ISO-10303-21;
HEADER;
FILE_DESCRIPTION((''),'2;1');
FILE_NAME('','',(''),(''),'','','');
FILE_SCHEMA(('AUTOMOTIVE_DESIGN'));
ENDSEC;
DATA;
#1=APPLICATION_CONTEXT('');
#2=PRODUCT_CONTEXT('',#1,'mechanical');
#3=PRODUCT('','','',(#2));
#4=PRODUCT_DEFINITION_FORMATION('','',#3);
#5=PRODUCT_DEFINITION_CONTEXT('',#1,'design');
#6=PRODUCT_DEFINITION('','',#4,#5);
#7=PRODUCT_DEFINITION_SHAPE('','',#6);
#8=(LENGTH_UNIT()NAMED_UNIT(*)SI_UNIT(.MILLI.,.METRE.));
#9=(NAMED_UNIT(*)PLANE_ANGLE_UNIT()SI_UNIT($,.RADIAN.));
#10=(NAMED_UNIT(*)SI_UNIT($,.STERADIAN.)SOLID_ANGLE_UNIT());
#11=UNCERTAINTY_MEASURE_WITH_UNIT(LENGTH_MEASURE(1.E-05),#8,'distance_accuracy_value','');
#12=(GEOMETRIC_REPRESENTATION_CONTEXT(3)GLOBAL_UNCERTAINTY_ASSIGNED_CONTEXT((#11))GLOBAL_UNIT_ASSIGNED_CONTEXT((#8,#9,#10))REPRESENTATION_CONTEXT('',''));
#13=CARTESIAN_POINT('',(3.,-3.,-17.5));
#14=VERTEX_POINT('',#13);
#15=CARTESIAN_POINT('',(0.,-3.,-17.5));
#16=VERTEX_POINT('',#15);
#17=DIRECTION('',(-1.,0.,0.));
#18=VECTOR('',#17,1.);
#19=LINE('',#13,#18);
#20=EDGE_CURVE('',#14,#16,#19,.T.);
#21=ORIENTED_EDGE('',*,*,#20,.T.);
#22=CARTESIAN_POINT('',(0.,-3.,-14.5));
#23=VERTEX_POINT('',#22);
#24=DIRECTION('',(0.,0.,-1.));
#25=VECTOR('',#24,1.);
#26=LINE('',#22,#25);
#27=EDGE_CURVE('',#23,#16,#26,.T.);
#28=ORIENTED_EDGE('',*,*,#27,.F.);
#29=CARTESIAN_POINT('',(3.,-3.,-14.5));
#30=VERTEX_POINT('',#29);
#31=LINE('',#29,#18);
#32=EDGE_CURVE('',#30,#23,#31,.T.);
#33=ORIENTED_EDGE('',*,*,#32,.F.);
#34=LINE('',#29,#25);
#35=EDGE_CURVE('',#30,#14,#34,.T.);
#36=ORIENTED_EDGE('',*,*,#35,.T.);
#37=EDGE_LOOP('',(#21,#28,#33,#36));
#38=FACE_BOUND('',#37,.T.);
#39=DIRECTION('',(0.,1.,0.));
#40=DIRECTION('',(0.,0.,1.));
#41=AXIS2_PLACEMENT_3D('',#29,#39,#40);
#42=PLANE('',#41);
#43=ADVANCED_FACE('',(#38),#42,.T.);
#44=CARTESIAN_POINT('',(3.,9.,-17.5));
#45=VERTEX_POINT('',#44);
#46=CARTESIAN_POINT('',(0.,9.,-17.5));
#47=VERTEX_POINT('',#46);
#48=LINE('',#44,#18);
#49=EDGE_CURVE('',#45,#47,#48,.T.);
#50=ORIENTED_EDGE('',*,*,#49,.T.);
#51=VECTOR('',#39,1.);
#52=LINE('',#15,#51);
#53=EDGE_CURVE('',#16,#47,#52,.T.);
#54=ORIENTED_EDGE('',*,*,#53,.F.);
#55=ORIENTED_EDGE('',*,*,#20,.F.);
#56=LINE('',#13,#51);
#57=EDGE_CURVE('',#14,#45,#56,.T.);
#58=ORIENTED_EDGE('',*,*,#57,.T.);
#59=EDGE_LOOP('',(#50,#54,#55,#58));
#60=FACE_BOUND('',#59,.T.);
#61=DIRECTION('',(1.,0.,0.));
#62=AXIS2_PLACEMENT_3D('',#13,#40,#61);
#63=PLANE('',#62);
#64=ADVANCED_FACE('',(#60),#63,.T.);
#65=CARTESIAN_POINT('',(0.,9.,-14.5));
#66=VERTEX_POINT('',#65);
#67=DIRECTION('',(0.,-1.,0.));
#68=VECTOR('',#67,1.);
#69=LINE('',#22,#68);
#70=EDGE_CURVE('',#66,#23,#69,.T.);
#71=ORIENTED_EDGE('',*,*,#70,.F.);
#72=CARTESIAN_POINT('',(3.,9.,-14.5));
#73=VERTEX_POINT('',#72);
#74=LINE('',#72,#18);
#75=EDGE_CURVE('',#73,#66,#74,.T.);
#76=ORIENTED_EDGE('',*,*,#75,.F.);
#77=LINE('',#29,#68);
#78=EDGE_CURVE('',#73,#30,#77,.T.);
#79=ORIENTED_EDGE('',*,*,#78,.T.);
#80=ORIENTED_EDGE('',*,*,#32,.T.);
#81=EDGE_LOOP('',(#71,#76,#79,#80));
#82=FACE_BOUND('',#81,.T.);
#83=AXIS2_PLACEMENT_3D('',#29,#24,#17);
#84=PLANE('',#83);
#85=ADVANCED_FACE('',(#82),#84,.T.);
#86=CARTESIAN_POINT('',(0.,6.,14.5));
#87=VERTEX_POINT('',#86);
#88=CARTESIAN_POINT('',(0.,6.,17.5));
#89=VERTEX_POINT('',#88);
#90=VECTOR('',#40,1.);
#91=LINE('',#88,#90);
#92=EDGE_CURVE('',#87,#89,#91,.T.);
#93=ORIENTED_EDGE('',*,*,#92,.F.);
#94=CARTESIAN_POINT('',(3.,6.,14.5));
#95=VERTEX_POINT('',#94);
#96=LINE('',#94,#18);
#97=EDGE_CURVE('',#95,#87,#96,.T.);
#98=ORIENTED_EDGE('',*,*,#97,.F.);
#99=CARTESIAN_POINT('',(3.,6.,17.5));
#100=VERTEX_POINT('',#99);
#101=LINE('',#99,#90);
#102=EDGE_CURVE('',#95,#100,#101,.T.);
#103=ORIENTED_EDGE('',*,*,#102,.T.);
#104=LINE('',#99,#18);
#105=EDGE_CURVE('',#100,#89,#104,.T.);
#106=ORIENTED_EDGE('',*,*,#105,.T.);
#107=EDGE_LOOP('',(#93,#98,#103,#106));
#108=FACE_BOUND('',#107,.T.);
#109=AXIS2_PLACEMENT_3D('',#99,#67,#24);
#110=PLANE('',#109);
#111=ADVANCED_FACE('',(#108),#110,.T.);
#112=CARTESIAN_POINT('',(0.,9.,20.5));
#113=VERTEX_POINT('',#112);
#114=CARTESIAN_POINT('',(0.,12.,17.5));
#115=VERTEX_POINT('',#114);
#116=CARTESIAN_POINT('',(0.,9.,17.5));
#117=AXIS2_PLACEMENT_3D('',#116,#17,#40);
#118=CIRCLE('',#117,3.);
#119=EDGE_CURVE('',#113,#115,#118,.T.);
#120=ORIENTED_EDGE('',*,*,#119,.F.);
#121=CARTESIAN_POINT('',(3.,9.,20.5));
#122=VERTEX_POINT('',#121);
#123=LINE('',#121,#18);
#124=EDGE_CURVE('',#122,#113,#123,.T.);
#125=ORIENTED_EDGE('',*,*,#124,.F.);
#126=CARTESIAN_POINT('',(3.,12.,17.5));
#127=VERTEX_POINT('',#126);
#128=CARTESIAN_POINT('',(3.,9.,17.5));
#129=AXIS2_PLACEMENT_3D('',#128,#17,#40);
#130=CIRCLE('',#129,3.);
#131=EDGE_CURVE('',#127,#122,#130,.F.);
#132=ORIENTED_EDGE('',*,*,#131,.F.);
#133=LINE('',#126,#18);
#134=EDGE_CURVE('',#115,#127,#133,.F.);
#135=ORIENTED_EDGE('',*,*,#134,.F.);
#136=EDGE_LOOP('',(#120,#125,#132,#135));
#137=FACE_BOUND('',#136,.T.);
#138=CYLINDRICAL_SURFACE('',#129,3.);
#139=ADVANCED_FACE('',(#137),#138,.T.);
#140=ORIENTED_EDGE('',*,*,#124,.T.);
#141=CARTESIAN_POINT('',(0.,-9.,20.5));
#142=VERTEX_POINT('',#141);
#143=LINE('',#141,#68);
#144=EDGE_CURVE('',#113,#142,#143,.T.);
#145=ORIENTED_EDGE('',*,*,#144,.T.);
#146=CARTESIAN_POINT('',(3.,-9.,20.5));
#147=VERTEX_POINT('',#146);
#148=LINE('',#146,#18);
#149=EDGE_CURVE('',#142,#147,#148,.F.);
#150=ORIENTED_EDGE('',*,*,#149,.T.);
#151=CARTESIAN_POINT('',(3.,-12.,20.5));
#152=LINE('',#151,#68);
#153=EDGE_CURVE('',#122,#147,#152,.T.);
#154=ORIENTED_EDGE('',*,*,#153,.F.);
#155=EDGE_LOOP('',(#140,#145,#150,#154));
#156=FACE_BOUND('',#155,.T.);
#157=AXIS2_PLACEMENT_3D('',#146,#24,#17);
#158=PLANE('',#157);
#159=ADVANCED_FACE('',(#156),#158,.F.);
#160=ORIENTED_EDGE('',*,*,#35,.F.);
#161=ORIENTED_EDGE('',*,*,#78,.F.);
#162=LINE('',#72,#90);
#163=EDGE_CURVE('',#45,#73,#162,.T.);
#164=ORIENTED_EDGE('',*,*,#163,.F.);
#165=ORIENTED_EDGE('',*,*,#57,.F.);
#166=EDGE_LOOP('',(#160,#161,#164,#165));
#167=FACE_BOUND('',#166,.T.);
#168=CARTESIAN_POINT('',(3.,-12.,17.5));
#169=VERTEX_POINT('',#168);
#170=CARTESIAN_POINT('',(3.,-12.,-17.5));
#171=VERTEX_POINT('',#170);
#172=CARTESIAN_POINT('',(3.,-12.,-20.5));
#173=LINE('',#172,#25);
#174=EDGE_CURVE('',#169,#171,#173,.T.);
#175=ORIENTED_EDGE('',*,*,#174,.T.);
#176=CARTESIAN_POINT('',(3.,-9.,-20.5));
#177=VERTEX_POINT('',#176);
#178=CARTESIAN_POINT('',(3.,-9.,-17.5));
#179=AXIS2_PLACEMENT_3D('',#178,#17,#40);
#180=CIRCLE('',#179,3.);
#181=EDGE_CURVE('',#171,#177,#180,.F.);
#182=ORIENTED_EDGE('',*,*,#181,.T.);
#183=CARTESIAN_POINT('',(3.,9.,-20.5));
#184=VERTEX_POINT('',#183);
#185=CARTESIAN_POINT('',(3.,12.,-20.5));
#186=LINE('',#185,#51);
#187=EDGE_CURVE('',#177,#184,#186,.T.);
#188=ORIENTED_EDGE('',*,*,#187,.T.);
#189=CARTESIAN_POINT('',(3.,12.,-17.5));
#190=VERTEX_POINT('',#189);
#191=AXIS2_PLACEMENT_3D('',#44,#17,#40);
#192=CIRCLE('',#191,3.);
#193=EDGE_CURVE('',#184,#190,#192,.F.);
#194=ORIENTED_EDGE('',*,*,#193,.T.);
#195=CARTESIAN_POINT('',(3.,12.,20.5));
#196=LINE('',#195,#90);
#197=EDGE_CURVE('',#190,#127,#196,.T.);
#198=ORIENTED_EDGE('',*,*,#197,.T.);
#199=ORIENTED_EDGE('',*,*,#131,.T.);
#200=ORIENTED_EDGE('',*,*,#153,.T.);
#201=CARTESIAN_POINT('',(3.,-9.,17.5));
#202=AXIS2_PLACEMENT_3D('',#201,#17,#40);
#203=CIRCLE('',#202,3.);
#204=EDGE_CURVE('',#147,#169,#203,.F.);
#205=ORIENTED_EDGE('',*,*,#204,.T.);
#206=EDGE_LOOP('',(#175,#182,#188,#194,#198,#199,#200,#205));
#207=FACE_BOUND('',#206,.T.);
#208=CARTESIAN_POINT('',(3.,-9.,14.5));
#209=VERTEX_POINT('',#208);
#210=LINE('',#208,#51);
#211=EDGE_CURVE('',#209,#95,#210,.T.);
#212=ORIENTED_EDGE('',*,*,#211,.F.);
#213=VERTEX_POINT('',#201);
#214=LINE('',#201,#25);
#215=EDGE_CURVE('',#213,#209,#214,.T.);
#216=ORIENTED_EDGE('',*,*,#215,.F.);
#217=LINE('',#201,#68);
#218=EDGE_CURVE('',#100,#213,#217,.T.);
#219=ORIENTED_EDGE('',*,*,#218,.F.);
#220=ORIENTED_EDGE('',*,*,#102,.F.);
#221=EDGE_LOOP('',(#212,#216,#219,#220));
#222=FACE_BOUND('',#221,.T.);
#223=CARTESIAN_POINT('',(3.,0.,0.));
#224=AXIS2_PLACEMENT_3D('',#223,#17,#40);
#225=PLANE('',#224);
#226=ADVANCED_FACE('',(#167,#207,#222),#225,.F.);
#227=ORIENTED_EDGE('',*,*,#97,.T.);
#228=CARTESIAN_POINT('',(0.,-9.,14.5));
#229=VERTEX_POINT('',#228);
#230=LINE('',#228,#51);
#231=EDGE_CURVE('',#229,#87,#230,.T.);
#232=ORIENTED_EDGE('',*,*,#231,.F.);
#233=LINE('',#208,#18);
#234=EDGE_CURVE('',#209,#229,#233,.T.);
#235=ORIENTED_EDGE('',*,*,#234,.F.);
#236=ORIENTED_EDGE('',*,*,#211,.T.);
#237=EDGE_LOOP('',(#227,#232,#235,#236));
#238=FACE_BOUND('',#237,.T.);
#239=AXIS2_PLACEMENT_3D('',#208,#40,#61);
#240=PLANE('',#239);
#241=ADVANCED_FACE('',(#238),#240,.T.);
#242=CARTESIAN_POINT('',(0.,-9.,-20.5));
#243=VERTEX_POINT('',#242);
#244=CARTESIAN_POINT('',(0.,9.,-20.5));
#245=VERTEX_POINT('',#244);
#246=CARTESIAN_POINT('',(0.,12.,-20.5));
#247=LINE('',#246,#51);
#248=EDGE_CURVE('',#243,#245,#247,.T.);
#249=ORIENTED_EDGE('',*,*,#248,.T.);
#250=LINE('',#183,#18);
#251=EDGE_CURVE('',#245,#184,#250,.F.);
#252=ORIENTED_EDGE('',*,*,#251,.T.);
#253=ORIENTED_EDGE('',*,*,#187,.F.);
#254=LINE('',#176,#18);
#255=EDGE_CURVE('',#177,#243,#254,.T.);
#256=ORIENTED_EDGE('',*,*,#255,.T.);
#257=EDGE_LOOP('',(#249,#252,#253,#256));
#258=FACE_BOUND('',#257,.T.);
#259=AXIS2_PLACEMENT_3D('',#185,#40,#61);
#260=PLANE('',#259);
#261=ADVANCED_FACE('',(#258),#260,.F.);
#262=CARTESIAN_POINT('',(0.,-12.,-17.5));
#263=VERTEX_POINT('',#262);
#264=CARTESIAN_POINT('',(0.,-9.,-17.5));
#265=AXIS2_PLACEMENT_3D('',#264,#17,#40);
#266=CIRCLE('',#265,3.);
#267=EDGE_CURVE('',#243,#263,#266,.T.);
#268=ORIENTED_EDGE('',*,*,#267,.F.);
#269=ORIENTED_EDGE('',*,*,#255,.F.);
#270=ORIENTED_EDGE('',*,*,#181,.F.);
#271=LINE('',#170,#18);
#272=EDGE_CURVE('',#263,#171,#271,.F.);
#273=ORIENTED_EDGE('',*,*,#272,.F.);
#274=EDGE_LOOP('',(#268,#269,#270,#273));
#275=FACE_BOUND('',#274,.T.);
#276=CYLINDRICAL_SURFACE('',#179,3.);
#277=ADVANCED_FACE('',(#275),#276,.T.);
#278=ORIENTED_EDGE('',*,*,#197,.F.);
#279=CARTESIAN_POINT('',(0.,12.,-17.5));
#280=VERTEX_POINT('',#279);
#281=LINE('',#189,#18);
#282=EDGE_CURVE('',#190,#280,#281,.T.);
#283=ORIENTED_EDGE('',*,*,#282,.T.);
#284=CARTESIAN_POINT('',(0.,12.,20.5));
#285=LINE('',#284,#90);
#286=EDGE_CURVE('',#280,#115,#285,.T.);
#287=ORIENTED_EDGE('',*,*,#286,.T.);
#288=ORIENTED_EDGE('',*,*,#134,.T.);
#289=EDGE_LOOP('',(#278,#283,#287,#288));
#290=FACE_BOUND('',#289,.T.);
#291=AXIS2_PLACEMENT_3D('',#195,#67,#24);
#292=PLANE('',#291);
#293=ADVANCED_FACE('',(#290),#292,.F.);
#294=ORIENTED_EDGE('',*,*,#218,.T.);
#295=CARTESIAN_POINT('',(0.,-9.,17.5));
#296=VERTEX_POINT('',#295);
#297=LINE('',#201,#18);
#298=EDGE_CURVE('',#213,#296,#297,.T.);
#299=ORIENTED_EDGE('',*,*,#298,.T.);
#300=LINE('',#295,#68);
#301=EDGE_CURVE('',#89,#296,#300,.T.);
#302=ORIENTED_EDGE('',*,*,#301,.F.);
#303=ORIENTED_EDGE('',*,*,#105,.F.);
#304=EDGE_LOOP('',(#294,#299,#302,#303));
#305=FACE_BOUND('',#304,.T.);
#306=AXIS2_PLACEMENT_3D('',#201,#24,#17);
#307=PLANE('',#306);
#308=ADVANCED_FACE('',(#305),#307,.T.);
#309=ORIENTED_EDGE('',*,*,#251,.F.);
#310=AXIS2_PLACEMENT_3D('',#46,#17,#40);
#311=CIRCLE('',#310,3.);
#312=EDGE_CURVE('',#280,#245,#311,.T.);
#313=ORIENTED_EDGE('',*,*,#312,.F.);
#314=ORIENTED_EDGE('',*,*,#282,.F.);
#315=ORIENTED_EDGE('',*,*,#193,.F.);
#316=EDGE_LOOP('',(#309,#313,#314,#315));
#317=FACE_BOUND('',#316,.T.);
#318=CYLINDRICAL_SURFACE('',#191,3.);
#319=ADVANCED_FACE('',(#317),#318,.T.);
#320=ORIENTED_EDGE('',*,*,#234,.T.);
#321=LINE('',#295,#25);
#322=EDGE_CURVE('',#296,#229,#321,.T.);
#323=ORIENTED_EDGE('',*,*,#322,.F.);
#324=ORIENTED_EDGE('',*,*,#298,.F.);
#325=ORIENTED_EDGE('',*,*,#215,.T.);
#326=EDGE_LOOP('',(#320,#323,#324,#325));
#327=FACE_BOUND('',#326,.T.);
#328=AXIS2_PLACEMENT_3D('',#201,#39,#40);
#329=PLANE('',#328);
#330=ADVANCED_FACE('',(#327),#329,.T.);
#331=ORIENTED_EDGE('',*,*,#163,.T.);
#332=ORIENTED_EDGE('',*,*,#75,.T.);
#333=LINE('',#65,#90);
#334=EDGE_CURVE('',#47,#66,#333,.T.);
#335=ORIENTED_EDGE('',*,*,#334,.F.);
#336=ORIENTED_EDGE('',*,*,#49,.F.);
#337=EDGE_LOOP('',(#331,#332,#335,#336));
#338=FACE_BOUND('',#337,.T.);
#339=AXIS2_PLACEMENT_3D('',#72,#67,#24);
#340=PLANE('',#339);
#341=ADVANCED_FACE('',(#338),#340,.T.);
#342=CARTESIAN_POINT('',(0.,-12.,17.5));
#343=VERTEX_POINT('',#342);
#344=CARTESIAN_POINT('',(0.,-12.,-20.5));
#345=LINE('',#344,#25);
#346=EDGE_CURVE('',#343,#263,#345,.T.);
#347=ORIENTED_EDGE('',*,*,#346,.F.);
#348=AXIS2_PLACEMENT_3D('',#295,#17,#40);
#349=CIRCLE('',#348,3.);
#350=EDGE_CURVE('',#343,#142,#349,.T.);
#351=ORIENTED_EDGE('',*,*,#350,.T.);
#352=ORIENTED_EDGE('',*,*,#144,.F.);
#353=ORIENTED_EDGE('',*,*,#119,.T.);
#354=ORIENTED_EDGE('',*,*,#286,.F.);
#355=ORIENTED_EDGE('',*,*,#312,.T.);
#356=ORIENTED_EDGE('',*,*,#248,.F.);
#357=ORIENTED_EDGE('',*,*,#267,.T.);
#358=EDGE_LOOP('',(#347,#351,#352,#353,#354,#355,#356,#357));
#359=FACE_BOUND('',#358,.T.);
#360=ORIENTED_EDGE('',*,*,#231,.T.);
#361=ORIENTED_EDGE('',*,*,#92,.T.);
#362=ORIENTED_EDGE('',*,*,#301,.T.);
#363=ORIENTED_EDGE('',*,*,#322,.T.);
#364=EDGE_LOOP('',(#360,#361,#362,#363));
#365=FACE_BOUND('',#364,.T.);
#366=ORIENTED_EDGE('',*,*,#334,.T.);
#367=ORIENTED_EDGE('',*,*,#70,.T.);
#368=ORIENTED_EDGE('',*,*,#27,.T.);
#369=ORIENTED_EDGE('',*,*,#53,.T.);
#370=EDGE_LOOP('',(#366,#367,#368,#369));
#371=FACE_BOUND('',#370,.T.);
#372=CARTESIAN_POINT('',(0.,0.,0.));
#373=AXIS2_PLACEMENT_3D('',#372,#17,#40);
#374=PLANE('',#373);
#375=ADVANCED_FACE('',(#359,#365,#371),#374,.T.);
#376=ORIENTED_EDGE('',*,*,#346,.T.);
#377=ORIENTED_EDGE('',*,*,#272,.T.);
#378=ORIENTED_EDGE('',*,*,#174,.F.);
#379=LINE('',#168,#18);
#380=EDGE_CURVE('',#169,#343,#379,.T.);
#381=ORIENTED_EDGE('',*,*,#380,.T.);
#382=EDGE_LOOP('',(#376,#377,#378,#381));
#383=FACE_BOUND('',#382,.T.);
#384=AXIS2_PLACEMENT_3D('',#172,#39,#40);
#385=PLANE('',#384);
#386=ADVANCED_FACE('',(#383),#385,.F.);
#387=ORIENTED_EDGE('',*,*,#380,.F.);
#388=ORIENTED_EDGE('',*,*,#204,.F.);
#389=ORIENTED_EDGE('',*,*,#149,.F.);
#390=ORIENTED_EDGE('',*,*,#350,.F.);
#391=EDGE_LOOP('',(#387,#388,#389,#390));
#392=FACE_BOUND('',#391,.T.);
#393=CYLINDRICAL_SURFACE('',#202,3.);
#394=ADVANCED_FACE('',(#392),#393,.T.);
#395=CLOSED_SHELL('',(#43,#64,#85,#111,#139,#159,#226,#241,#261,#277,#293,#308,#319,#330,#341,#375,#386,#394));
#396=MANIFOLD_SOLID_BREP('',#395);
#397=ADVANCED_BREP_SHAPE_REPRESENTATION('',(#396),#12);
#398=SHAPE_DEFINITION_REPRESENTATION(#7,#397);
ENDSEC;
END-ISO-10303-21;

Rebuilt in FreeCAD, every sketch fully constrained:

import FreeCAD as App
import Part
import Sketcher

V = App.Vector


def edges_at(feature, points):
    """Names of the edges that pass closest to the given points."""
    edges = feature.Shape.Edges
    near = lambda p: min(range(len(edges)), key=lambda i: edges[i].distToShape(Part.Vertex(*p))[0])
    return sorted({f"Edge{near(p) + 1}" for p in points})

doc = App.newDocument("Part")
body = doc.addObject("PartDesign::Body", "Body")

sketch1 = doc.addObject("Sketcher::SketchObject", "Sketch")
body.addObject(sketch1)
sketch1.AttachmentSupport = (doc.YZ_Plane, [""])
sketch1.MapMode = "FlatFace"
sketch1.addGeometry([
    Part.LineSegment(V(12, 20.5, 0), V(-12, 20.5, 0)),
    Part.LineSegment(V(-12, 20.5, 0), V(-12, -20.5, 0)),
    Part.LineSegment(V(-12, -20.5, 0), V(12, -20.5, 0)),
    Part.LineSegment(V(12, -20.5, 0), V(12, 20.5, 0)),
    Part.LineSegment(V(-9, 17.5, 0), V(6, 17.5, 0)),
    Part.LineSegment(V(6, 17.5, 0), V(6, 14.5, 0)),
    Part.LineSegment(V(6, 14.5, 0), V(-9, 14.5, 0)),
    Part.LineSegment(V(-9, 14.5, 0), V(-9, 17.5, 0)),
    Part.LineSegment(V(-3, -14.5, 0), V(9, -14.5, 0)),
    Part.LineSegment(V(9, -14.5, 0), V(9, -17.5, 0)),
    Part.LineSegment(V(9, -17.5, 0), V(-3, -17.5, 0)),
    Part.LineSegment(V(-3, -17.5, 0), V(-3, -14.5, 0)),
], False)
sketch1.addConstraint([
    Sketcher.Constraint("Coincident", 0, 2, 1, 1),
    Sketcher.Constraint("Coincident", 1, 2, 2, 1),
    Sketcher.Constraint("Coincident", 2, 2, 3, 1),
    Sketcher.Constraint("Coincident", 3, 2, 0, 1),
    Sketcher.Constraint("Coincident", 4, 2, 5, 1),
    Sketcher.Constraint("Coincident", 5, 2, 6, 1),
    Sketcher.Constraint("Coincident", 6, 2, 7, 1),
    Sketcher.Constraint("Coincident", 7, 2, 4, 1),
    Sketcher.Constraint("Coincident", 8, 2, 9, 1),
    Sketcher.Constraint("Coincident", 9, 2, 10, 1),
    Sketcher.Constraint("Coincident", 10, 2, 11, 1),
    Sketcher.Constraint("Coincident", 11, 2, 8, 1),
    Sketcher.Constraint("Horizontal", 0),
    Sketcher.Constraint("Vertical", 1),
    Sketcher.Constraint("Horizontal", 2),
    Sketcher.Constraint("Vertical", 3),
    Sketcher.Constraint("Horizontal", 4),
    Sketcher.Constraint("Vertical", 5),
    Sketcher.Constraint("Horizontal", 6),
    Sketcher.Constraint("Vertical", 7),
    Sketcher.Constraint("Horizontal", 8),
    Sketcher.Constraint("Vertical", 9),
    Sketcher.Constraint("Horizontal", 10),
    Sketcher.Constraint("Vertical", 11),
    Sketcher.Constraint("Symmetric", 0, 2, 2, 2, -1, 1),
    Sketcher.Constraint("Symmetric", 6, 2, 8, 2, -1, 1),
    Sketcher.Constraint("Equal", 7, 9),
    Sketcher.Constraint("DistanceX", 0, 2, 0, 1, 24.0),
    Sketcher.Constraint("DistanceX", 4, 1, 4, 2, 15.0),
    Sketcher.Constraint("DistanceX", 8, 1, 8, 2, 12.0),
    Sketcher.Constraint("DistanceY", 1, 2, 1, 1, 41.0),
    Sketcher.Constraint("DistanceY", 5, 2, 5, 1, 3.0),
    Sketcher.Constraint("DistanceX", -1, 1, 4, 2, 6.0),
    Sketcher.Constraint("DistanceY", 4, 2, 3, 2, 3.0),
])
pad1 = doc.addObject("PartDesign::Pad", "Pad")
body.addObject(pad1)
pad1.Profile = sketch1
pad1.Length = 3
doc.recompute()

fillet = doc.addObject("PartDesign::Fillet", "Fillet")
body.addObject(fillet)
fillet.Base = (pad1, edges_at(pad1, [
    (1.5, 12, 20.5),
    (1.5, 12, -20.5),
    (1.5, -12, -20.5),
    (1.5, -12, 20.5),
]))
fillet.Radius = 3

doc.recompute()
